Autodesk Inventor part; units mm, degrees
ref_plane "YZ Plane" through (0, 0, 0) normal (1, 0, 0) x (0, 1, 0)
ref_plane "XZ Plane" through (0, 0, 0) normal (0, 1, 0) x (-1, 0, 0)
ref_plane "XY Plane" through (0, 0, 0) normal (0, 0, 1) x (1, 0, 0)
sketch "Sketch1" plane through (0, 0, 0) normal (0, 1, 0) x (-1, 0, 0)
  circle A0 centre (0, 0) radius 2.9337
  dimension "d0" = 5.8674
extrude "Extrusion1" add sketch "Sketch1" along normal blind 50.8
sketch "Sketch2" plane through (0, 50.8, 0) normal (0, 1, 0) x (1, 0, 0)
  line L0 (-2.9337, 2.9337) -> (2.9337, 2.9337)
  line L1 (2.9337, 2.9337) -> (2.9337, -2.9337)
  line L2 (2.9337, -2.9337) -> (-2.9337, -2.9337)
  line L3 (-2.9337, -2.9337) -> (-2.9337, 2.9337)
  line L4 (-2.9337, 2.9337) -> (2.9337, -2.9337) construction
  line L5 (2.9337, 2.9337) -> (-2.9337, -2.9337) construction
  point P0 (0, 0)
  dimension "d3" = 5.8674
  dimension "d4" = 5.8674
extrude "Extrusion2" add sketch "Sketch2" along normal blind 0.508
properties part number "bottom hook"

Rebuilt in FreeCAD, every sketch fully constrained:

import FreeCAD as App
import Part
import Sketcher
Q = App.Units.Quantity


def add_polygon(sketch, points):
    """Adds a closed chain of lines whose ends are joined by coincident constraints."""
    first, n = sketch.GeometryCount, len(points)
    for a, b in zip(points, points[1:] + points[:1]):
        sketch.addGeometry(Part.LineSegment(App.Vector(*a, 0), App.Vector(*b, 0)), False)
    for i in range(n):
        sketch.addConstraint(Sketcher.Constraint("Coincident", first + i, 2, first + (i + 1) % n, 1))

doc = App.newDocument("Part")
body = doc.addObject("PartDesign::Body", "Body")

sketch1 = body.newObject("Sketcher::SketchObject", "Sketch")
sketch1.AttachmentSupport = (doc.getObject("XZ_Plane"), [""])
sketch1.MapMode = "FlatFace"
sketch1.addGeometry(Part.Circle(App.Vector(0, 0, 0), App.Vector(0, 0, 1), 2.9), False)
sketch1.addConstraint(Sketcher.Constraint("Coincident", 0, 3, -1, 1))
sketch1.addConstraint(Sketcher.Constraint("Diameter", 0, Q("0.231 in")))
pad1 = body.newObject("PartDesign::Pad", "Pad")
pad1.Profile = sketch1
pad1.Length = Q("2 in")
pad1.Reversed = True

sketch2 = body.newObject("Sketcher::SketchObject", "Sketch001")
sketch2.AttachmentSupport = (doc.getObject("XZ_Plane"), [""])
sketch2.MapMode = "FlatFace"
sketch2.AttachmentOffset = App.Placement(App.Vector(0, 0, -2 * 25.4), App.Rotation())
add_polygon(sketch2, [(3, -3), (-3, -3), (-3, 3), (3, 3)])
sketch2.addConstraint(Sketcher.Constraint("Horizontal", 0))
sketch2.addConstraint(Sketcher.Constraint("Vertical", 1))
sketch2.addConstraint(Sketcher.Constraint("Horizontal", 2))
sketch2.addConstraint(Sketcher.Constraint("Vertical", 3))
sketch2.addConstraint(Sketcher.Constraint("Symmetric", 0, 2, 2, 2, -1, 1))
sketch2.addConstraint(Sketcher.Constraint("Equal", 2, 1))
sketch2.addConstraint(Sketcher.Constraint("DistanceX", 0, 2, 0, 1, Q("0.231 in")))
pad2 = body.newObject("PartDesign::Pad", "Pad001")
pad2.Profile = sketch2
pad2.Length = Q("0.02 in")
pad2.Reversed = True

doc.recompute()
